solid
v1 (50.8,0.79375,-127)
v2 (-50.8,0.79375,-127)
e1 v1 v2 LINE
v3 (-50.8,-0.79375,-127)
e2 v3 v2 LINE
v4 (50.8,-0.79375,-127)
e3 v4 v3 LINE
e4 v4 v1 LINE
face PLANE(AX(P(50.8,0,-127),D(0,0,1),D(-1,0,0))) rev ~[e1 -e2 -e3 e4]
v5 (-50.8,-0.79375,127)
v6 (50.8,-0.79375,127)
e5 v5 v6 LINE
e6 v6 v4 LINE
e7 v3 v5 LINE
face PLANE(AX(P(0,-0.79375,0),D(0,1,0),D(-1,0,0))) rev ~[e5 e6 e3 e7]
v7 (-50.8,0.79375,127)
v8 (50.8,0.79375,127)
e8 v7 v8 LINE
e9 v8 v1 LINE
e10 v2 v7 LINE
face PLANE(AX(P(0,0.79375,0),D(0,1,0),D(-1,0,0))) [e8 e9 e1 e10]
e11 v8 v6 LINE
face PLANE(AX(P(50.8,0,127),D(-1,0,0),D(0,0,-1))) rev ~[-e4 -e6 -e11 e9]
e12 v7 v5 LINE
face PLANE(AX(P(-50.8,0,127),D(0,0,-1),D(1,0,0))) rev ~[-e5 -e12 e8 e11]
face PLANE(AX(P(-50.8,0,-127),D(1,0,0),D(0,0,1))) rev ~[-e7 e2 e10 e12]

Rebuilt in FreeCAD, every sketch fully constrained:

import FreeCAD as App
import Part
import Sketcher
from FreeCAD import Vector
Q = App.Units.Quantity

doc = App.newDocument("Part")
params = doc.addObject("Spreadsheet::Sheet", "Params")
for row, (alias, value) in enumerate([
    ("sketch1_width", "4 in"),
    ("sketch1_height", "10 in"),
    ("pad1_length", "0.0625 in"),
], start=1):
    params.set(f"A{row}", alias)
    params.set(f"B{row}", "=" + value)
    params.setAlias(f"B{row}", alias)

body = doc.addObject("PartDesign::Body", "Body")

sketch1 = doc.addObject("Sketcher::SketchObject", "Sketch")
body.addObject(sketch1)
sketch1.AttachmentSupport = (doc.XZ_Plane, [""])
sketch1.MapMode = "FlatFace"
sketch1.addGeometry(Part.LineSegment(Vector(51, 127, 0), Vector(51, -127, 0)), False)
sketch1.addGeometry(Part.LineSegment(Vector(51, -127, 0), Vector(-51, -127, 0)), False)
sketch1.addGeometry(Part.LineSegment(Vector(-51, -127, 0), Vector(-51, 127, 0)), False)
sketch1.addGeometry(Part.LineSegment(Vector(-51, 127, 0), Vector(51, 127, 0)), False)
sketch1.addConstraint(Sketcher.Constraint("Coincident", 0, 2, 1, 1))
sketch1.addConstraint(Sketcher.Constraint("Coincident", 1, 2, 2, 1))
sketch1.addConstraint(Sketcher.Constraint("Coincident", 2, 2, 3, 1))
sketch1.addConstraint(Sketcher.Constraint("Coincident", 3, 2, 0, 1))
sketch1.addConstraint(Sketcher.Constraint("Vertical", 0))
sketch1.addConstraint(Sketcher.Constraint("Horizontal", 1))
sketch1.addConstraint(Sketcher.Constraint("Vertical", 2))
sketch1.addConstraint(Sketcher.Constraint("Horizontal", 3))
sketch1.addConstraint(Sketcher.Constraint("Symmetric", 0, 2, 2, 2, -1, 1))
sketch1.addConstraint(Sketcher.Constraint("DistanceX", 1, 2, 1, 1, Q("4 in")))
sketch1.addConstraint(Sketcher.Constraint("DistanceY", 0, 2, 0, 1, Q("10 in")))
sketch1.setExpression("Constraints[9]", "Params.sketch1_width")
sketch1.setExpression("Constraints[10]", "Params.sketch1_height")
pad1 = doc.addObject("PartDesign::Pad", "Pad")
body.addObject(pad1)
pad1.Profile = sketch1
pad1.setExpression("Length", "Params.pad1_length")
pad1.Midplane = True

doc.recompute()
